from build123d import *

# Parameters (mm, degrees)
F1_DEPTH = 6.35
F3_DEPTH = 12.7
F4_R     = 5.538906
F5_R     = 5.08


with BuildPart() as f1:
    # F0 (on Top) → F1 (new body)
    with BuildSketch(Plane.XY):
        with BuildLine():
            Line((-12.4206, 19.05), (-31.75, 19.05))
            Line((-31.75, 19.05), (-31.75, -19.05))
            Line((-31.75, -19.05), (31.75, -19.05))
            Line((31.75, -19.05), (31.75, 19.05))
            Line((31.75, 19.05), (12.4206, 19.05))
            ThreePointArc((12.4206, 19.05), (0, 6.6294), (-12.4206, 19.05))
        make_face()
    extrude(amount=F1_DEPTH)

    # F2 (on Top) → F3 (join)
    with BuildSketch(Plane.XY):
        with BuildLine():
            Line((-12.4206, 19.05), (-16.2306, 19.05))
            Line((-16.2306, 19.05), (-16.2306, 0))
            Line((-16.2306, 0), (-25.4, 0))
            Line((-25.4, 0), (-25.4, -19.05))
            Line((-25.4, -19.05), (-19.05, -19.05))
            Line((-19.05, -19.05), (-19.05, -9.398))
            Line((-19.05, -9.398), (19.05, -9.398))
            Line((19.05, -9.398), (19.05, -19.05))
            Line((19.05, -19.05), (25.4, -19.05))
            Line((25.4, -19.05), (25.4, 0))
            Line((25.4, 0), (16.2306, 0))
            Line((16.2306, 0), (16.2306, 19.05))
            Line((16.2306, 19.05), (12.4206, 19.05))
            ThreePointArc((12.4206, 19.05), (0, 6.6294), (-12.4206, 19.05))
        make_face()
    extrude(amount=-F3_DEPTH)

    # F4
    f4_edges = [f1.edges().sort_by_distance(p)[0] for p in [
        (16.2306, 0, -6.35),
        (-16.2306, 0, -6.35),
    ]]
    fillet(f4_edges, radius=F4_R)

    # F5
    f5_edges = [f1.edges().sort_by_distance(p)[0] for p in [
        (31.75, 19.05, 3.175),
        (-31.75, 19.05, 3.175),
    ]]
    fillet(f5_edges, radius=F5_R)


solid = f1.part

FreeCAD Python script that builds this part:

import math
import FreeCAD as App
import Part
import Sketcher

V = App.Vector
Q = App.Units.Quantity


def edges_at(feature, points):
    """Names of the edges that pass closest to the given points."""
    edges = feature.Shape.Edges
    near = lambda p: min(range(len(edges)), key=lambda i: edges[i].distToShape(Part.Vertex(*p))[0])
    return sorted({f"Edge{near(p) + 1}" for p in points})

doc = App.newDocument("Part")
body = doc.addObject("PartDesign::Body", "Body")

sketch1 = doc.addObject("Sketcher::SketchObject", "Sketch")
body.addObject(sketch1)
sketch1.AttachmentSupport = (doc.XY_Plane, [""])
sketch1.MapMode = "FlatFace"
sketch1.addGeometry([
    Part.LineSegment(V(-12, 19, 0), V(-32, 19, 0)),
    Part.LineSegment(V(-32, 19, 0), V(-32, -19, 0)),
    Part.LineSegment(V(-32, -19, 0), V(32, -19, 0)),
    Part.LineSegment(V(32, -19, 0), V(32, 19, 0)),
    Part.LineSegment(V(32, 19, 0), V(12, 19, 0)),
    Part.ArcOfCircle(Part.Circle(V(0, 19, 0), V(0, 0, 1), 12), math.radians(180), math.radians(360)),
], False)
sketch1.addConstraint([
    Sketcher.Constraint("Coincident", 0, 2, 1, 1),
    Sketcher.Constraint("Coincident", 1, 2, 2, 1),
    Sketcher.Constraint("Coincident", 2, 2, 3, 1),
    Sketcher.Constraint("Coincident", 3, 2, 4, 1),
    Sketcher.Constraint("Coincident", 4, 2, 5, 2),
    Sketcher.Constraint("Coincident", 5, 1, 0, 1),
    Sketcher.Constraint("Horizontal", 0),
    Sketcher.Constraint("Vertical", 1),
    Sketcher.Constraint("Horizontal", 2),
    Sketcher.Constraint("Vertical", 3),
    Sketcher.Constraint("Horizontal", 4),
    Sketcher.Constraint("Symmetric", 0, 2, 2, 2, -1, 1),
    Sketcher.Constraint("Symmetric", 4, 2, 5, 1, -2),
    Sketcher.Constraint("Horizontal", 5, 3, 0, 2),
    Sketcher.Constraint("DistanceX", 2, 1, 2, 2, Q("2.5 in")),
    Sketcher.Constraint("DistanceY", 1, 2, 1, 1, Q("1.5 in")),
    Sketcher.Constraint("Radius", 5, Q("0.489 in")),
])
pad1 = doc.addObject("PartDesign::Pad", "Pad")
body.addObject(pad1)
pad1.Profile = sketch1
pad1.Length = Q("0.25 in")

sketch2 = doc.addObject("Sketcher::SketchObject", "Sketch001")
body.addObject(sketch2)
sketch2.AttachmentSupport = (doc.XY_Plane, [""])
sketch2.MapMode = "FlatFace"
sketch2.addGeometry([
    Part.LineSegment(V(-12.4, 19.1, 0), V(-16.2, 19.1, 0)),
    Part.LineSegment(V(-16.2, 19.1, 0), V(-16.2, 0, 0)),
    Part.LineSegment(V(-16.2, 0, 0), V(-25.4, 0, 0)),
    Part.LineSegment(V(-25.4, 0, 0), V(-25.4, -19.1, 0)),
    Part.LineSegment(V(-25.4, -19.1, 0), V(-19.1, -19.1, 0)),
    Part.LineSegment(V(-19.1, -19.1, 0), V(-19.1, -9.4, 0)),
    Part.LineSegment(V(-19.1, -9.4, 0), V(19.1, -9.4, 0)),
    Part.LineSegment(V(19.1, -9.4, 0), V(19.1, -19.1, 0)),
    Part.LineSegment(V(19.1, -19.1, 0), V(25.4, -19.1, 0)),
    Part.LineSegment(V(25.4, -19.1, 0), V(25.4, 0, 0)),
    Part.LineSegment(V(25.4, 0, 0), V(16.2, 0, 0)),
    Part.LineSegment(V(16.2, 0, 0), V(16.2, 19.1, 0)),
    Part.LineSegment(V(16.2, 19.1, 0), V(12.4, 19.1, 0)),
    Part.ArcOfCircle(Part.Circle(V(0, 19.1, 0), V(0, 0, 1), 12.4), math.radians(180), math.radians(360)),
], False)
sketch2.addConstraint([
    Sketcher.Constraint("Coincident", 0, 2, 1, 1),
    Sketcher.Constraint("Coincident", 1, 2, 2, 1),
    Sketcher.Constraint("Coincident", 2, 2, 3, 1),
    Sketcher.Constraint("Coincident", 3, 2, 4, 1),
    Sketcher.Constraint("Coincident", 4, 2, 5, 1),
    Sketcher.Constraint("Coincident", 5, 2, 6, 1),
    Sketcher.Constraint("Coincident", 6, 2, 7, 1),
    Sketcher.Constraint("Coincident", 7, 2, 8, 1),
    Sketcher.Constraint("Coincident", 8, 2, 9, 1),
    Sketcher.Constraint("Coincident", 9, 2, 10, 1),
    Sketcher.Constraint("Coincident", 10, 2, 11, 1),
    Sketcher.Constraint("Coincident", 11, 2, 12, 1),
    Sketcher.Constraint("Coincident", 12, 2, 13, 2),
    Sketcher.Constraint("Coincident", 13, 1, 0, 1),
    Sketcher.Constraint("Horizontal", 0),
    Sketcher.Constraint("Vertical", 1),
    Sketcher.Constraint("Horizontal", 2),
    Sketcher.Constraint("Vertical", 3),
    Sketcher.Constraint("Horizontal", 4),
    Sketcher.Constraint("Vertical", 5),
    Sketcher.Constraint("Horizontal", 6),
    Sketcher.Constraint("Vertical", 7),
    Sketcher.Constraint("Horizontal", 8),
    Sketcher.Constraint("Vertical", 9),
    Sketcher.Constraint("Horizontal", 10),
    Sketcher.Constraint("Vertical", 11),
    Sketcher.Constraint("Horizontal", 12),
    Sketcher.Constraint("Symmetric", 2, 2, 9, 2, -1, 1),
    Sketcher.Constraint("Symmetric", 4, 2, 7, 2, -2),
    Sketcher.Constraint("Symmetric", 1, 2, 10, 2, -2),
    Sketcher.Constraint("Symmetric", 12, 2, 13, 1, -2),
    Sketcher.Constraint("Horizontal", 13, 3, 0, 2),
    Sketcher.Constraint("Equal", 1, 3),
    Sketcher.Constraint("DistanceX", 6, 1, 6, 2, Q("1.5 in")),
    Sketcher.Constraint("DistanceX", 2, 2, -1, 1, Q("1 in")),
    Sketcher.Constraint("Radius", 13, Q("0.489 in")),
    Sketcher.Constraint("DistanceX", 0, 2, 0, 1, Q("0.15 in")),
    Sketcher.Constraint("DistanceY", 1, 2, 1, 1, Q("0.75 in")),
    Sketcher.Constraint("DistanceY", 5, 1, 5, 2, Q("0.38 in")),
])
pad2 = doc.addObject("PartDesign::Pad", "Pad001")
body.addObject(pad2)
pad2.Profile = sketch2
pad2.Length = Q("0.5 in")
pad2.Reversed = True
doc.recompute()

fillet = doc.addObject("PartDesign::Fillet", "Fillet")
body.addObject(fillet)
fillet.Base = (pad2, edges_at(pad2, [(16.231, 0, -6.35), (-16.231, 0, -6.35)]))
fillet.Radius = 5.538906
doc.recompute()

fillet2 = doc.addObject("PartDesign::Fillet", "Fillet001")
body.addObject(fillet2)
fillet2.Base = (fillet, edges_at(fillet, [(31.75, 19.05, 3.175), (-31.75, 19.05, 3.175)]))
fillet2.Radius = Q("0.2 in")

doc.recompute()
